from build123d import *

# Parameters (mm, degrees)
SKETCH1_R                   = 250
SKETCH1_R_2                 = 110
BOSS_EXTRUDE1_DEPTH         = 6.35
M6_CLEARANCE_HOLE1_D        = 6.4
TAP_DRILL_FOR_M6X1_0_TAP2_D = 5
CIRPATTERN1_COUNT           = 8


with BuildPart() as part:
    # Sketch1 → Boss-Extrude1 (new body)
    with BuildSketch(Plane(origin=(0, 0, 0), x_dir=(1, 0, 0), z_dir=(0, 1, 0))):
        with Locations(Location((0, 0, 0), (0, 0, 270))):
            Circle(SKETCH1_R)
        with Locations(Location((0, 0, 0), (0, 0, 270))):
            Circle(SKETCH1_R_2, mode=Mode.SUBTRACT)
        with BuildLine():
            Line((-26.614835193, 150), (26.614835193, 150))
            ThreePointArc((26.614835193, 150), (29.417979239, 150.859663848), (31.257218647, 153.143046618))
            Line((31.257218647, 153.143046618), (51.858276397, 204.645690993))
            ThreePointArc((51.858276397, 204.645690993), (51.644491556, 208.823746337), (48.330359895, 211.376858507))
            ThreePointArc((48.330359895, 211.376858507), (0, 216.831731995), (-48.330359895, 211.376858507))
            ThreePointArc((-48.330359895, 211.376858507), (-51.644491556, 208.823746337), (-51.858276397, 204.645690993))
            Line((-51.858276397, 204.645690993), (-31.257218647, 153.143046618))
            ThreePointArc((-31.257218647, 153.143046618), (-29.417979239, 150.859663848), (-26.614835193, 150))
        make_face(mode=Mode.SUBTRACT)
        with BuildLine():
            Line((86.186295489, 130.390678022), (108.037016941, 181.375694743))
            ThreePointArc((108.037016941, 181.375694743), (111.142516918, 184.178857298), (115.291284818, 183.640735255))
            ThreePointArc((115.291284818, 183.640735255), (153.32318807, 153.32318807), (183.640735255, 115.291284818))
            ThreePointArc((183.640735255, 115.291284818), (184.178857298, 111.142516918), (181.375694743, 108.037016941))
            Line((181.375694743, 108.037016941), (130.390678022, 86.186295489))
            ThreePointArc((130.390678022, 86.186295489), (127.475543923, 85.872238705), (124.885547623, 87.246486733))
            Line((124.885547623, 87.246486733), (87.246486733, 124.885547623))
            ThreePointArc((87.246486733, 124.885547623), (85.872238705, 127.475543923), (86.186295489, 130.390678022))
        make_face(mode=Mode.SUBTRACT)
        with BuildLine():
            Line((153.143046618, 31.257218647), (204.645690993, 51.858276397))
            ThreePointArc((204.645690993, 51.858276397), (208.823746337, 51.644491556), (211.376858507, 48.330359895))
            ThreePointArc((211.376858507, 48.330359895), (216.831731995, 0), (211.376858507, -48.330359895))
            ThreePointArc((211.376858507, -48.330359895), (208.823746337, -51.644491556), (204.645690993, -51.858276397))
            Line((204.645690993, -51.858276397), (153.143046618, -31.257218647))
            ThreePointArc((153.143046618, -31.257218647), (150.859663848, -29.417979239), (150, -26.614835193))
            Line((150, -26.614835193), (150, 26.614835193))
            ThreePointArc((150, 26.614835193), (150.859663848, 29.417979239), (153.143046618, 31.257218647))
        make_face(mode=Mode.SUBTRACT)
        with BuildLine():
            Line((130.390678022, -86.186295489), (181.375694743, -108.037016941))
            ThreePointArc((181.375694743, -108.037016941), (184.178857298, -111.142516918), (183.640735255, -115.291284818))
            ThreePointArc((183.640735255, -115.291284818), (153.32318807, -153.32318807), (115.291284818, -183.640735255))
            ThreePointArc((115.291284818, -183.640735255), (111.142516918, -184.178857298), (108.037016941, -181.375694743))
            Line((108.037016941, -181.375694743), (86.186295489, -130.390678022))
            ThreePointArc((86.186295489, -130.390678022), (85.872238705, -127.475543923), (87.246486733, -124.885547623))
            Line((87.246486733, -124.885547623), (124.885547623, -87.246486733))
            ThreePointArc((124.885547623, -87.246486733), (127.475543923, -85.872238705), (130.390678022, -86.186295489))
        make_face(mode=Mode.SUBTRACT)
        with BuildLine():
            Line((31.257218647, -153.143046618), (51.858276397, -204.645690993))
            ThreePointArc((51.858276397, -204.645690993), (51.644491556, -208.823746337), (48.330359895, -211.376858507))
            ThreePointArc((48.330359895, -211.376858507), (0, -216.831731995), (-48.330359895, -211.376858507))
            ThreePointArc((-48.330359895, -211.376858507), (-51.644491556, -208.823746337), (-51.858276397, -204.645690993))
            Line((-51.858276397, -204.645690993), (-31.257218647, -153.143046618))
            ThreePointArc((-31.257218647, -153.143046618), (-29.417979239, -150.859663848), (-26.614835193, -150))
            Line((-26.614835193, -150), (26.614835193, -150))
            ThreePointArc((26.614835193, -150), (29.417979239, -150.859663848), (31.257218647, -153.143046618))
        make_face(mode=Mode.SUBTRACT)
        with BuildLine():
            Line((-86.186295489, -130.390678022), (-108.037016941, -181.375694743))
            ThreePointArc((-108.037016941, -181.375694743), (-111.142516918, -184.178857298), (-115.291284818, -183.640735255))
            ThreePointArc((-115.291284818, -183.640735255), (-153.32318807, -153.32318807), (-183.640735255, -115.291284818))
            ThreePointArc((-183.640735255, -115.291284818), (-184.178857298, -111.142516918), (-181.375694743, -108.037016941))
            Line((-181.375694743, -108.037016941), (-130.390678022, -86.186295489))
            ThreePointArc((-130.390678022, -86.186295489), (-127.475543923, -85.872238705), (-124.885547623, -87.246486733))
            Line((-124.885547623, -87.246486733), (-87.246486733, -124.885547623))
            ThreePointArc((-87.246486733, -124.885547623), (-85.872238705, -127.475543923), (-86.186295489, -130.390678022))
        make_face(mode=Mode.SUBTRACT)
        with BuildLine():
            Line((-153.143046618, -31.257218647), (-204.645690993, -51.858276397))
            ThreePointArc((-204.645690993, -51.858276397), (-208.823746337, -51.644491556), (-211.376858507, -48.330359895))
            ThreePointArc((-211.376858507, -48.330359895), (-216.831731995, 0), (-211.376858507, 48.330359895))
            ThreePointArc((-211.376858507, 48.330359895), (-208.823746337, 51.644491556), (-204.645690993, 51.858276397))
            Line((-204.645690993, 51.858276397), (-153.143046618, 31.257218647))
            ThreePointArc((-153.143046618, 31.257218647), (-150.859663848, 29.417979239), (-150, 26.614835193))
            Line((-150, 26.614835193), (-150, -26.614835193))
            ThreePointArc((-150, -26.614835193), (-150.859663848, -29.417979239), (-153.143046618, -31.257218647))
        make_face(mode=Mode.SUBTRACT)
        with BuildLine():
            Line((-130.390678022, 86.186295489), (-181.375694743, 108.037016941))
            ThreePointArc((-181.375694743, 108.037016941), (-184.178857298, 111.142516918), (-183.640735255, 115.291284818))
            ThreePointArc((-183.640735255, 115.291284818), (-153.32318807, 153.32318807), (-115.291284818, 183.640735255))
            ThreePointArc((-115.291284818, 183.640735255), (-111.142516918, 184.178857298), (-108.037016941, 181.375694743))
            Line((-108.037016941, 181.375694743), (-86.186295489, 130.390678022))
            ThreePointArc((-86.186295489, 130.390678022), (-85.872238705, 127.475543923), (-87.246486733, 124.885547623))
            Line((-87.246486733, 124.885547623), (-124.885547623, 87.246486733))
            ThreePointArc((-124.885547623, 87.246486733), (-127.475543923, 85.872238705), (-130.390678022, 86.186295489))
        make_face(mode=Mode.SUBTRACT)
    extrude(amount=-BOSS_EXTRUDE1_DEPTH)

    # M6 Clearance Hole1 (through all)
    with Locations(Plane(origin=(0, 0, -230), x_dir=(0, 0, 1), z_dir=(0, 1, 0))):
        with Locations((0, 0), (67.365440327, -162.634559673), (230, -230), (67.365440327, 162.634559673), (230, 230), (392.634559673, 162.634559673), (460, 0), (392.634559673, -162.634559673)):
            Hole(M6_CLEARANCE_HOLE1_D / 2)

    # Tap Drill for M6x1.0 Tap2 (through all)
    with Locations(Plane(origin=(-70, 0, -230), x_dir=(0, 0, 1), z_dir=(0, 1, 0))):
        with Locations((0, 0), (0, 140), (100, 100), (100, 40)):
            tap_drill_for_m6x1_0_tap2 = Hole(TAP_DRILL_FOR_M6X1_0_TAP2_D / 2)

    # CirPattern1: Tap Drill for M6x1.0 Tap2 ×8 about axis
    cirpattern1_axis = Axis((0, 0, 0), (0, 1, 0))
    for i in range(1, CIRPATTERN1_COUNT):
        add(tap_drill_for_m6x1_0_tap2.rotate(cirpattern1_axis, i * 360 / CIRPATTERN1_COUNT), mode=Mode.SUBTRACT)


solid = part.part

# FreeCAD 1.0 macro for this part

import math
import FreeCAD as App
import Part
import Sketcher
from FreeCAD import Vector
Q = App.Units.Quantity

doc = App.newDocument("Part")
body = doc.addObject("PartDesign::Body", "Body")

sketch1 = body.newObject("Sketcher::SketchObject", "Sketch")
sketch1.AttachmentSupport = (doc.getObject("XZ_Plane"), [""])
sketch1.MapMode = "FlatFace"
sketch1.addGeometry(Part.Circle(Vector(0, 0, 0), Vector(0, 0, 1), 250), False)
sketch1.addGeometry(Part.ArcOfCircle(Part.Circle(Vector(-128.421082, -90.782021, 0), Vector(0, 0, 1), 5), math.radians(45), math.radians(113.198591)), False)
sketch1.addGeometry(Part.LineSegment(Vector(-130.390678, -86.186295, 0), Vector(-181.375695, -108.037017, 0)), False)
sketch1.addGeometry(Part.ArcOfCircle(Part.Circle(Vector(-179.406098, -112.632742, 0), Vector(0, 0, 1), 5), math.radians(113.198591), math.radians(212.120967)), False)
sketch1.addGeometry(Part.ArcOfCircle(Part.Circle(Vector(0, 0, 0), Vector(0, 0, 1), 216.831732), math.radians(-147.879033), math.radians(-122.120967)), False)
sketch1.addGeometry(Part.ArcOfCircle(Part.Circle(Vector(-112.632742, -179.406098, 0), Vector(0, 0, 1), 5), math.radians(-122.120967), math.radians(-23.198591)), False)
sketch1.addGeometry(Part.LineSegment(Vector(-108.037017, -181.375695, 0), Vector(-86.186295, -130.390678, 0)), False)
sketch1.addGeometry(Part.ArcOfCircle(Part.Circle(Vector(-90.782021, -128.421082, 0), Vector(0, 0, 1), 5), math.radians(-23.198591), math.radians(45)), False)
sketch1.addGeometry(Part.LineSegment(Vector(-87.246487, -124.885548, 0), Vector(-124.885548, -87.246487, 0)), False)
sketch1.addGeometry(Part.LineSegment(Vector(26.614835, -150, 0), Vector(-26.614835, -150, 0)), False)
sketch1.addGeometry(Part.ArcOfCircle(Part.Circle(Vector(-26.614835, -155, 0), Vector(0, 0, 1), 5), math.radians(90), math.radians(158.19859)), False)
sketch1.addGeometry(Part.LineSegment(Vector(-31.257219, -153.143047, 0), Vector(-51.858276, -204.645691, 0)), False)
sketch1.addGeometry(Part.ArcOfCircle(Part.Circle(Vector(-47.215893, -206.502644, 0), Vector(0, 0, 1), 5), math.radians(158.198591), math.radians(257.120967)), False)
sketch1.addGeometry(Part.ArcOfCircle(Part.Circle(Vector(0, 0, 0), Vector(0, 0, 1), 216.831732), math.radians(-102.879033), math.radians(-77.120967)), False)
sketch1.addGeometry(Part.ArcOfCircle(Part.Circle(Vector(47.215893, -206.502644, 0), Vector(0, 0, 1), 5), math.radians(-77.120967), math.radians(21.801409)), False)
sketch1.addGeometry(Part.LineSegment(Vector(51.858276, -204.645691, 0), Vector(31.257219, -153.143047, 0)), False)
sketch1.addGeometry(Part.ArcOfCircle(Part.Circle(Vector(26.614835, -155, 0), Vector(0, 0, 1), 5), math.radians(21.80141), math.radians(90)), False)
sketch1.addGeometry(Part.ArcOfCircle(Part.Circle(Vector(-155, 26.614835, 0), Vector(0, 0, 1), 5), math.radians(0), math.radians(68.19859)), False)
sketch1.addGeometry(Part.LineSegment(Vector(-153.143047, 31.257219, 0), Vector(-204.645691, 51.858276, 0)), False)
sketch1.addGeometry(Part.ArcOfCircle(Part.Circle(Vector(-206.502644, 47.215893, 0), Vector(0, 0, 1), 5), math.radians(68.198591), math.radians(167.120967)), False)
sketch1.addGeometry(Part.ArcOfCircle(Part.Circle(Vector(0, 0, 0), Vector(0, 0, 1), 216.831732), math.radians(167.120967), math.radians(192.879033)), False)
sketch1.addGeometry(Part.ArcOfCircle(Part.Circle(Vector(-206.502644, -47.215893, 0), Vector(0, 0, 1), 5), math.radians(-167.120967), math.radians(-68.198591)), False)
sketch1.addGeometry(Part.LineSegment(Vector(-204.645691, -51.858276, 0), Vector(-153.143047, -31.257219, 0)), False)
sketch1.addGeometry(Part.ArcOfCircle(Part.Circle(Vector(-155, -26.614835, 0), Vector(0, 0, 1), 5), math.radians(-68.19859), math.radians(0)), False)
sketch1.addGeometry(Part.LineSegment(Vector(-150, -26.614835, 0), Vector(-150, 26.614835, 0)), False)
sketch1.addGeometry(Part.ArcOfCircle(Part.Circle(Vector(-90.782021, 128.421082, 0), Vector(0, 0, 1), 5), math.radians(-45), math.radians(23.198591)), False)
sketch1.addGeometry(Part.LineSegment(Vector(-86.186295, 130.390678, 0), Vector(-108.037017, 181.375695, 0)), False)
sketch1.addGeometry(Part.ArcOfCircle(Part.Circle(Vector(-112.632742, 179.406098, 0), Vector(0, 0, 1), 5), math.radians(23.198591), math.radians(122.120967)), False)
sketch1.addGeometry(Part.ArcOfCircle(Part.Circle(Vector(0, 0, 0), Vector(0, 0, 1), 216.831732), math.radians(122.120967), math.radians(147.879033)), False)
sketch1.addGeometry(Part.ArcOfCircle(Part.Circle(Vector(-179.406098, 112.632742, 0), Vector(0, 0, 1), 5), math.radians(147.879033), math.radians(246.801409)), False)
sketch1.addGeometry(Part.LineSegment(Vector(-181.375695, 108.037017, 0), Vector(-130.390678, 86.186295, 0)), False)
sketch1.addGeometry(Part.ArcOfCircle(Part.Circle(Vector(-128.421082, 90.782021, 0), Vector(0, 0, 1), 5), math.radians(-113.198591), math.radians(-45)), False)
sketch1.addGeometry(Part.LineSegment(Vector(-124.885548, 87.246487, 0), Vector(-87.246487, 124.885548, 0)), False)
sketch1.addGeometry(Part.ArcOfCircle(Part.Circle(Vector(90.782021, -128.421082, 0), Vector(0, 0, 1), 5), math.radians(135), math.radians(203.198591)), False)
sketch1.addGeometry(Part.LineSegment(Vector(86.186295, -130.390678, 0), Vector(108.037017, -181.375695, 0)), False)
sketch1.addGeometry(Part.ArcOfCircle(Part.Circle(Vector(112.632742, -179.406098, 0), Vector(0, 0, 1), 5), math.radians(-156.801409), math.radians(-57.879033)), False)
sketch1.addGeometry(Part.ArcOfCircle(Part.Circle(Vector(0, 0, 0), Vector(0, 0, 1), 216.831732), math.radians(-57.879033), math.radians(-32.120967)), False)
sketch1.addGeometry(Part.ArcOfCircle(Part.Circle(Vector(179.406098, -112.632742, 0), Vector(0, 0, 1), 5), math.radians(-32.120967), math.radians(66.801409)), False)
sketch1.addGeometry(Part.LineSegment(Vector(181.375695, -108.037017, 0), Vector(130.390678, -86.186295, 0)), False)
sketch1.addGeometry(Part.ArcOfCircle(Part.Circle(Vector(128.421082, -90.782021, 0), Vector(0, 0, 1), 5), math.radians(66.801409), math.radians(135)), False)
sketch1.addGeometry(Part.LineSegment(Vector(124.885548, -87.246487, 0), Vector(87.246487, -124.885548, 0)), False)
sketch1.addGeometry(Part.Circle(Vector(0, 0, 0), Vector(0, 0, 1), 110), False)
sketch1.addGeometry(Part.ArcOfCircle(Part.Circle(Vector(26.614835, 155, 0), Vector(0, 0, 1), 5), math.radians(-90), math.radians(-21.80141)), False)
sketch1.addGeometry(Part.LineSegment(Vector(31.257219, 153.143047, 0), Vector(51.858276, 204.645691, 0)), False)
sketch1.addGeometry(Part.ArcOfCircle(Part.Circle(Vector(47.215893, 206.502644, 0), Vector(0, 0, 1), 5), math.radians(-21.801409), math.radians(77.120967)), False)
sketch1.addGeometry(Part.ArcOfCircle(Part.Circle(Vector(0, 0, 0), Vector(0, 0, 1), 216.831732), math.radians(77.120967), math.radians(102.879033)), False)
sketch1.addGeometry(Part.ArcOfCircle(Part.Circle(Vector(-47.215893, 206.502644, 0), Vector(0, 0, 1), 5), math.radians(102.879033), math.radians(201.801409)), False)
sketch1.addGeometry(Part.LineSegment(Vector(-51.858276, 204.645691, 0), Vector(-31.257219, 153.143047, 0)), False)
sketch1.addGeometry(Part.ArcOfCircle(Part.Circle(Vector(-26.614835, 155, 0), Vector(0, 0, 1), 5), math.radians(-158.19859), math.radians(-90)), False)
sketch1.addGeometry(Part.LineSegment(Vector(-26.614835, 150, 0), Vector(26.614835, 150, 0)), False)
sketch1.addGeometry(Part.ArcOfCircle(Part.Circle(Vector(155, -26.614835, 0), Vector(0, 0, 1), 5), math.radians(-180), math.radians(-111.80141)), False)
sketch1.addGeometry(Part.LineSegment(Vector(153.143047, -31.257219, 0), Vector(204.645691, -51.858276, 0)), False)
sketch1.addGeometry(Part.ArcOfCircle(Part.Circle(Vector(206.502644, -47.215893, 0), Vector(0, 0, 1), 5), math.radians(-111.801409), math.radians(-12.879033)), False)
sketch1.addGeometry(Part.ArcOfCircle(Part.Circle(Vector(0, 0, 0), Vector(0, 0, 1), 216.831732), math.radians(-12.879033), math.radians(12.879033)), False)
sketch1.addGeometry(Part.ArcOfCircle(Part.Circle(Vector(206.502644, 47.215893, 0), Vector(0, 0, 1), 5), math.radians(12.879033), math.radians(111.801409)), False)
sketch1.addGeometry(Part.LineSegment(Vector(204.645691, 51.858276, 0), Vector(153.143047, 31.257219, 0)), False)
sketch1.addGeometry(Part.ArcOfCircle(Part.Circle(Vector(155, 26.614835, 0), Vector(0, 0, 1), 5), math.radians(111.80141), math.radians(180)), False)
sketch1.addGeometry(Part.LineSegment(Vector(150, 26.614835, 0), Vector(150, -26.614835, 0)), False)
sketch1.addGeometry(Part.ArcOfCircle(Part.Circle(Vector(128.421082, 90.782021, 0), Vector(0, 0, 1), 5), math.radians(-135), math.radians(-66.801409)), False)
sketch1.addGeometry(Part.LineSegment(Vector(130.390678, 86.186295, 0), Vector(181.375695, 108.037017, 0)), False)
sketch1.addGeometry(Part.ArcOfCircle(Part.Circle(Vector(179.406098, 112.632742, 0), Vector(0, 0, 1), 5), math.radians(-66.801409), math.radians(32.120967)), False)
sketch1.addGeometry(Part.ArcOfCircle(Part.Circle(Vector(0, 0, 0), Vector(0, 0, 1), 216.831732), math.radians(32.120967), math.radians(57.879033)), False)
sketch1.addGeometry(Part.ArcOfCircle(Part.Circle(Vector(112.632742, 179.406098, 0), Vector(0, 0, 1), 5), math.radians(57.879033), math.radians(156.801409)), False)
sketch1.addGeometry(Part.LineSegment(Vector(108.037017, 181.375695, 0), Vector(86.186295, 130.390678, 0)), False)
sketch1.addGeometry(Part.ArcOfCircle(Part.Circle(Vector(90.782021, 128.421082, 0), Vector(0, 0, 1), 5), math.radians(156.801409), math.radians(225)), False)
sketch1.addGeometry(Part.LineSegment(Vector(87.246487, 124.885548, 0), Vector(124.885548, 87.246487, 0)), False)
sketch1.addConstraint(Sketcher.Constraint("Tangent", 1, 2, 2, 1))
sketch1.addConstraint(Sketcher.Constraint("Tangent", 2, 2, 3, 1))
sketch1.addConstraint(Sketcher.Constraint("Tangent", 3, 2, 4, 1))
sketch1.addConstraint(Sketcher.Constraint("Tangent", 4, 2, 5, 1))
sketch1.addConstraint(Sketcher.Constraint("Tangent", 5, 2, 6, 1))
sketch1.addConstraint(Sketcher.Constraint("Tangent", 6, 2, 7, 1))
sketch1.addConstraint(Sketcher.Constraint("Tangent", 7, 2, 8, 1))
sketch1.addConstraint(Sketcher.Constraint("Tangent", 8, 2, 1, 1))
sketch1.addConstraint(Sketcher.Constraint("Tangent", 9, 2, 10, 1))
sketch1.addConstraint(Sketcher.Constraint("Tangent", 10, 2, 11, 1))
sketch1.addConstraint(Sketcher.Constraint("Tangent", 11, 2, 12, 1))
sketch1.addConstraint(Sketcher.Constraint("Tangent", 12, 2, 13, 1))
sketch1.addConstraint(Sketcher.Constraint("Tangent", 13, 2, 14, 1))
sketch1.addConstraint(Sketcher.Constraint("Tangent", 14, 2, 15, 1))
sketch1.addConstraint(Sketcher.Constraint("Tangent", 15, 2, 16, 1))
sketch1.addConstraint(Sketcher.Constraint("Tangent", 16, 2, 9, 1))
sketch1.addConstraint(Sketcher.Constraint("Tangent", 17, 2, 18, 1))
sketch1.addConstraint(Sketcher.Constraint("Tangent", 18, 2, 19, 1))
sketch1.addConstraint(Sketcher.Constraint("Tangent", 19, 2, 20, 1))
sketch1.addConstraint(Sketcher.Constraint("Tangent", 20, 2, 21, 1))
sketch1.addConstraint(Sketcher.Constraint("Tangent", 21, 2, 22, 1))
sketch1.addConstraint(Sketcher.Constraint("Tangent", 22, 2, 23, 1))
sketch1.addConstraint(Sketcher.Constraint("Tangent", 23, 2, 24, 1))
sketch1.addConstraint(Sketcher.Constraint("Tangent", 24, 2, 17, 1))
sketch1.addConstraint(Sketcher.Constraint("Tangent", 25, 2, 26, 1))
sketch1.addConstraint(Sketcher.Constraint("Tangent", 26, 2, 27, 1))
sketch1.addConstraint(Sketcher.Constraint("Tangent", 27, 2, 28, 1))
sketch1.addConstraint(Sketcher.Constraint("Tangent", 28, 2, 29, 1))
sketch1.addConstraint(Sketcher.Constraint("Tangent", 29, 2, 30, 1))
sketch1.addConstraint(Sketcher.Constraint("Tangent", 30, 2, 31, 1))
sketch1.addConstraint(Sketcher.Constraint("Tangent", 31, 2, 32, 1))
sketch1.addConstraint(Sketcher.Constraint("Tangent", 32, 2, 25, 1))
sketch1.addConstraint(Sketcher.Constraint("Tangent", 33, 2, 34, 1))
sketch1.addConstraint(Sketcher.Constraint("Tangent", 34, 2, 35, 1))
sketch1.addConstraint(Sketcher.Constraint("Tangent", 35, 2, 36, 1))
sketch1.addConstraint(Sketcher.Constraint("Tangent", 36, 2, 37, 1))
sketch1.addConstraint(Sketcher.Constraint("Tangent", 37, 2, 38, 1))
sketch1.addConstraint(Sketcher.Constraint("Tangent", 38, 2, 39, 1))
sketch1.addConstraint(Sketcher.Constraint("Tangent", 39, 2, 40, 1))
sketch1.addConstraint(Sketcher.Constraint("Tangent", 40, 2, 33, 1))
sketch1.addConstraint(Sketcher.Constraint("Tangent", 42, 2, 43, 1))
sketch1.addConstraint(Sketcher.Constraint("Tangent", 43, 2, 44, 1))
sketch1.addConstraint(Sketcher.Constraint("Tangent", 44, 2, 45, 1))
sketch1.addConstraint(Sketcher.Constraint("Tangent", 45, 2, 46, 1))
sketch1.addConstraint(Sketcher.Constraint("Tangent", 46, 2, 47, 1))
sketch1.addConstraint(Sketcher.Constraint("Tangent", 47, 2, 48, 1))
sketch1.addConstraint(Sketcher.Constraint("Tangent", 48, 2, 49, 1))
sketch1.addConstraint(Sketcher.Constraint("Tangent", 49, 2, 42, 1))
sketch1.addConstraint(Sketcher.Constraint("Tangent", 50, 2, 51, 1))
sketch1.addConstraint(Sketcher.Constraint("Tangent", 51, 2, 52, 1))
sketch1.addConstraint(Sketcher.Constraint("Tangent", 52, 2, 53, 1))
sketch1.addConstraint(Sketcher.Constraint("Tangent", 53, 2, 54, 1))
sketch1.addConstraint(Sketcher.Constraint("Tangent", 54, 2, 55, 1))
sketch1.addConstraint(Sketcher.Constraint("Tangent", 55, 2, 56, 1))
sketch1.addConstraint(Sketcher.Constraint("Tangent", 56, 2, 57, 1))
sketch1.addConstraint(Sketcher.Constraint("Tangent", 57, 2, 50, 1))
sketch1.addConstraint(Sketcher.Constraint("Tangent", 58, 2, 59, 1))
sketch1.addConstraint(Sketcher.Constraint("Tangent", 59, 2, 60, 1))
sketch1.addConstraint(Sketcher.Constraint("Tangent", 60, 2, 61, 1))
sketch1.addConstraint(Sketcher.Constraint("Tangent", 61, 2, 62, 1))
sketch1.addConstraint(Sketcher.Constraint("Tangent", 62, 2, 63, 1))
sketch1.addConstraint(Sketcher.Constraint("Tangent", 63, 2, 64, 1))
sketch1.addConstraint(Sketcher.Constraint("Tangent", 64, 2, 65, 1))
sketch1.addConstraint(Sketcher.Constraint("Tangent", 65, 2, 58, 1))
sketch1.addConstraint(Sketcher.Constraint("Horizontal", 9))
sketch1.addConstraint(Sketcher.Constraint("Vertical", 24))
sketch1.addConstraint(Sketcher.Constraint("Horizontal", 49))
sketch1.addConstraint(Sketcher.Constraint("Vertical", 57))
sketch1.addConstraint(Sketcher.Constraint("Coincident", 0, 3, -1, 1))
sketch1.addConstraint(Sketcher.Constraint("Coincident", 4, 3, -1, 1))
sketch1.addConstraint(Sketcher.Constraint("Coincident", 13, 3, -1, 1))
sketch1.addConstraint(Sketcher.Constraint("Coincident", 20, 3, -1, 1))
sketch1.addConstraint(Sketcher.Constraint("Coincident", 28, 3, -1, 1))
sketch1.addConstraint(Sketcher.Constraint("Coincident", 36, 3, -1, 1))
sketch1.addConstraint(Sketcher.Constraint("Coincident", 41, 3, -1, 1))
sketch1.addConstraint(Sketcher.Constraint("Coincident", 45, 3, -1, 1))
sketch1.addConstraint(Sketcher.Constraint("Coincident", 53, 3, -1, 1))
sketch1.addConstraint(Sketcher.Constraint("Coincident", 61, 3, -1, 1))
sketch1.addConstraint(Sketcher.Constraint("Equal", 1, 3))
sketch1.addConstraint(Sketcher.Constraint("Equal", 3, 5))
sketch1.addConstraint(Sketcher.Constraint("Equal", 5, 7))
sketch1.addConstraint(Sketcher.Constraint("Equal", 7, 10))
sketch1.addConstraint(Sketcher.Constraint("Equal", 10, 12))
sketch1.addConstraint(Sketcher.Constraint("Equal", 4, 13))
sketch1.addConstraint(Sketcher.Constraint("Equal", 12, 14))
sketch1.addConstraint(Sketcher.Constraint("Equal", 14, 16))
sketch1.addConstraint(Sketcher.Constraint("Equal", 16, 17))
sketch1.addConstraint(Sketcher.Constraint("Equal", 17, 19))
sketch1.addConstraint(Sketcher.Constraint("Equal", 13, 20))
sketch1.addConstraint(Sketcher.Constraint("Equal", 19, 21))
sketch1.addConstraint(Sketcher.Constraint("Equal", 21, 23))
sketch1.addConstraint(Sketcher.Constraint("Equal", 23, 25))
sketch1.addConstraint(Sketcher.Constraint("Equal", 25, 27))
sketch1.addConstraint(Sketcher.Constraint("Equal", 20, 28))
sketch1.addConstraint(Sketcher.Constraint("Equal", 27, 29))
sketch1.addConstraint(Sketcher.Constraint("Equal", 29, 31))
sketch1.addConstraint(Sketcher.Constraint("Equal", 31, 33))
sketch1.addConstraint(Sketcher.Constraint("Equal", 33, 35))
sketch1.addConstraint(Sketcher.Constraint("Equal", 28, 36))
sketch1.addConstraint(Sketcher.Constraint("Equal", 35, 37))
sketch1.addConstraint(Sketcher.Constraint("Equal", 37, 39))
sketch1.addConstraint(Sketcher.Constraint("Equal", 39, 42))
sketch1.addConstraint(Sketcher.Constraint("Equal", 42, 44))
sketch1.addConstraint(Sketcher.Constraint("Equal", 36, 45))
sketch1.addConstraint(Sketcher.Constraint("Equal", 44, 46))
sketch1.addConstraint(Sketcher.Constraint("Equal", 46, 48))
sketch1.addConstraint(Sketcher.Constraint("Equal", 48, 50))
sketch1.addConstraint(Sketcher.Constraint("Equal", 50, 52))
sketch1.addConstraint(Sketcher.Constraint("Equal", 45, 53))
sketch1.addConstraint(Sketcher.Constraint("Equal", 52, 54))
sketch1.addConstraint(Sketcher.Constraint("Equal", 54, 56))
sketch1.addConstraint(Sketcher.Constraint("Equal", 56, 58))
sketch1.addConstraint(Sketcher.Constraint("Equal", 58, 60))
sketch1.addConstraint(Sketcher.Constraint("Equal", 53, 61))
sketch1.addConstraint(Sketcher.Constraint("Equal", 60, 62))
sketch1.addConstraint(Sketcher.Constraint("Equal", 62, 64))
sketch1.addConstraint(Sketcher.Constraint("Symmetric", 25, 3, 33, 3, -1, 1))
sketch1.addConstraint(Sketcher.Constraint("Symmetric", 31, 3, 39, 3, -1, 1))
sketch1.addConstraint(Sketcher.Constraint("Symmetric", 10, 3, 42, 3, -1, 1))
sketch1.addConstraint(Sketcher.Constraint("Symmetric", 17, 3, 50, 3, -1, 1))
sketch1.addConstraint(Sketcher.Constraint("Symmetric", 1, 3, 58, 3, -1, 1))
sketch1.addConstraint(Sketcher.Constraint("Symmetric", 7, 3, 64, 3, -1, 1))
sketch1.addConstraint(Sketcher.Constraint("Symmetric", 14, 2, 46, 2, -1, 1))
sketch1.addConstraint(Sketcher.Constraint("Symmetric", 21, 2, 54, 2, -1, 1))
sketch1.addConstraint(Sketcher.Constraint("Symmetric", 7, 3, 33, 3, -2))
sketch1.addConstraint(Sketcher.Constraint("Symmetric", 1, 3, 39, 3, -2))
sketch1.addConstraint(Sketcher.Constraint("Symmetric", 11, 2, 14, 2, -2))
sketch1.addConstraint(Sketcher.Constraint("Symmetric", 22, 2, 50, 2, -2))
sketch1.addConstraint(Sketcher.Constraint("Perpendicular", 11, 18))
sketch1.addConstraint(Sketcher.Constraint("Perpendicular", 15, 22))
sketch1.addConstraint(Sketcher.Constraint("Perpendicular", 2, 26))
sketch1.addConstraint(Sketcher.Constraint("Perpendicular", 6, 30))
sketch1.addConstraint(Sketcher.Constraint("Perpendicular", 8, 32))
sketch1.addConstraint(Sketcher.Constraint("Parallel", 26, 34))
sketch1.addConstraint(Sketcher.Constraint("Parallel", 30, 38))
sketch1.addConstraint(Sketcher.Constraint("Perpendicular", 18, 43))
sketch1.addConstraint(Sketcher.Constraint("Perpendicular", 34, 59))
sketch1.addConstraint(Sketcher.Constraint("Perpendicular", 38, 63))
sketch1.addConstraint(Sketcher.Constraint("Horizontal", 5, 3, 35, 3))
sketch1.addConstraint(Sketcher.Constraint("Equal", 49, 24))
sketch1.addConstraint(Sketcher.Constraint("Equal", 2, 6))
sketch1.addConstraint(Sketcher.Constraint("Equal", 6, 11))
sketch1.addConstraint(Sketcher.Constraint("Equal", 15, 18))
sketch1.addConstraint(Sketcher.Constraint("Diameter", 0, Q("500 mm")))
sketch1.addConstraint(Sketcher.Constraint("Diameter", 41, Q("220 mm")))
sketch1.addConstraint(Sketcher.Constraint("Radius", 1, Q("5 mm")))
sketch1.addConstraint(Sketcher.Constraint("DistanceY", 10, 3, -1, 1, Q("155 mm")))
sketch1.addConstraint(Sketcher.Constraint("Radius", 13, Q("216.831732 mm")))
sketch1.addConstraint(Sketcher.Constraint("DistanceX", 9, 2, 9, 1, Q("53.22967 mm")))
sketch1.addConstraint(Sketcher.Constraint("DistanceX", 3, 3, -1, 1, Q("179.406098 mm")))
sketch1.addConstraint(Sketcher.Constraint("Distance", 8, Q("53.22967 mm")))
sketch1.addConstraint(Sketcher.Constraint("DistanceX", 1, 3, -1, 1, Q("128.421082 mm")))
pad1 = body.newObject("PartDesign::Pad", "Pad")
pad1.Profile = sketch1
pad1.Length = 6.35

sketch2 = body.newObject("Sketcher::SketchObject", "Sketch001")
sketch2.AttachmentSupport = (doc.getObject("XZ_Plane"), [""])
sketch2.MapMode = "FlatFace"
sketch2.addGeometry(Part.Circle(Vector(0, -230, 0), Vector(0, 0, 1), 3.2), False)
sketch2.addGeometry(Part.Circle(Vector(-162.63456, -162.63456, 0), Vector(0, 0, 1), 3.2), False)
sketch2.addGeometry(Part.Circle(Vector(-230, 0, 0), Vector(0, 0, 1), 3.2), False)
sketch2.addGeometry(Part.Circle(Vector(162.63456, -162.63456, 0), Vector(0, 0, 1), 3.2), False)
sketch2.addGeometry(Part.Circle(Vector(230, 0, 0), Vector(0, 0, 1), 3.2), False)
sketch2.addGeometry(Part.Circle(Vector(162.63456, 162.63456, 0), Vector(0, 0, 1), 3.2), False)
sketch2.addGeometry(Part.Circle(Vector(0, 230, 0), Vector(0, 0, 1), 3.2), False)
sketch2.addGeometry(Part.Circle(Vector(-162.63456, 162.63456, 0), Vector(0, 0, 1), 3.2), False)
sketch2.addConstraint(Sketcher.Constraint("Equal", 0, 1))
sketch2.addConstraint(Sketcher.Constraint("Equal", 1, 2))
sketch2.addConstraint(Sketcher.Constraint("Equal", 2, 3))
sketch2.addConstraint(Sketcher.Constraint("Equal", 3, 4))
sketch2.addConstraint(Sketcher.Constraint("Equal", 4, 5))
sketch2.addConstraint(Sketcher.Constraint("Equal", 5, 6))
sketch2.addConstraint(Sketcher.Constraint("Equal", 6, 7))
sketch2.addConstraint(Sketcher.Constraint("Symmetric", 2, 3, 4, 3, -1, 1))
sketch2.addConstraint(Sketcher.Constraint("Symmetric", 1, 3, 5, 3, -1, 1))
sketch2.addConstraint(Sketcher.Constraint("Symmetric", 0, 3, 6, 3, -1, 1))
sketch2.addConstraint(Sketcher.Constraint("Symmetric", 3, 3, 7, 3, -1, 1))
sketch2.addConstraint(Sketcher.Constraint("Symmetric", 1, 3, 3, 3, -2))
sketch2.addConstraint(Sketcher.Constraint("PointOnObject", 0, 3, -2))
sketch2.addConstraint(Sketcher.Constraint("PointOnObject", 2, 3, -1))
sketch2.addConstraint(Sketcher.Constraint("Diameter", 0, Q("6.4 mm")))
sketch2.addConstraint(Sketcher.Constraint("DistanceY", 0, 3, -1, 1, Q("230 mm")))
sketch2.addConstraint(Sketcher.Constraint("DistanceX", 2, 3, -1, 1, Q("230 mm")))
sketch2.addConstraint(Sketcher.Constraint("DistanceX", 1, 3, -1, 1, Q("162.63456 mm")))
sketch2.addConstraint(Sketcher.Constraint("DistanceY", 1, 3, -1, 1, Q("162.63456 mm")))
doc.recompute()
hole = body.newObject("PartDesign::Hole", "Hole")
hole.Profile = sketch2
hole.ThreadType = "None"
hole.Diameter = 6.4
hole.DepthType = "ThroughAll"
hole.Reversed = True

sketch3 = body.newObject("Sketcher::SketchObject", "Sketch002")
sketch3.AttachmentSupport = (doc.getObject("XZ_Plane"), [""])
sketch3.MapMode = "FlatFace"
sketch3.addGeometry(Part.Circle(Vector(-70, -230, 0), Vector(0, 0, 1), 2.5), False)
sketch3.addGeometry(Part.Circle(Vector(70, -230, 0), Vector(0, 0, 1), 2.5), False)
sketch3.addGeometry(Part.Circle(Vector(30, -130, 0), Vector(0, 0, 1), 2.5), False)
sketch3.addGeometry(Part.Circle(Vector(-30, -130, 0), Vector(0, 0, 1), 2.5), False)
sketch3.addConstraint(Sketcher.Constraint("Equal", 0, 1))
sketch3.addConstraint(Sketcher.Constraint("Equal", 1, 2))
sketch3.addConstraint(Sketcher.Constraint("Equal", 2, 3))
sketch3.addConstraint(Sketcher.Constraint("Symmetric", 0, 3, 1, 3, -2))
sketch3.addConstraint(Sketcher.Constraint("Symmetric", 2, 3, 3, 3, -2))
sketch3.addConstraint(Sketcher.Constraint("Diameter", 0, Q("5 mm")))
sketch3.addConstraint(Sketcher.Constraint("DistanceX", 0, 3, -1, 1, Q("70 mm")))
sketch3.addConstraint(Sketcher.Constraint("DistanceY", 0, 3, -1, 1, Q("230 mm")))
sketch3.addConstraint(Sketcher.Constraint("DistanceX", -1, 1, 2, 3, Q("30 mm")))
sketch3.addConstraint(Sketcher.Constraint("DistanceY", 2, 3, -1, 1, Q("130 mm")))
doc.recompute()
hole2 = body.newObject("PartDesign::Hole", "Hole001")
hole2.Profile = sketch3
hole2.ThreadType = "None"
hole2.Diameter = 5
hole2.DepthType = "ThroughAll"
hole2.Reversed = True
doc.recompute()

polarpattern = body.newObject("PartDesign::PolarPattern", "PolarPattern")
polarpattern.Originals = [hole2]
polarpattern.Axis = (doc.getObject("Y_Axis"), [""])
polarpattern.Angle = 360
polarpattern.Occurrences = 8
body.Tip = polarpattern

doc.recompute()
